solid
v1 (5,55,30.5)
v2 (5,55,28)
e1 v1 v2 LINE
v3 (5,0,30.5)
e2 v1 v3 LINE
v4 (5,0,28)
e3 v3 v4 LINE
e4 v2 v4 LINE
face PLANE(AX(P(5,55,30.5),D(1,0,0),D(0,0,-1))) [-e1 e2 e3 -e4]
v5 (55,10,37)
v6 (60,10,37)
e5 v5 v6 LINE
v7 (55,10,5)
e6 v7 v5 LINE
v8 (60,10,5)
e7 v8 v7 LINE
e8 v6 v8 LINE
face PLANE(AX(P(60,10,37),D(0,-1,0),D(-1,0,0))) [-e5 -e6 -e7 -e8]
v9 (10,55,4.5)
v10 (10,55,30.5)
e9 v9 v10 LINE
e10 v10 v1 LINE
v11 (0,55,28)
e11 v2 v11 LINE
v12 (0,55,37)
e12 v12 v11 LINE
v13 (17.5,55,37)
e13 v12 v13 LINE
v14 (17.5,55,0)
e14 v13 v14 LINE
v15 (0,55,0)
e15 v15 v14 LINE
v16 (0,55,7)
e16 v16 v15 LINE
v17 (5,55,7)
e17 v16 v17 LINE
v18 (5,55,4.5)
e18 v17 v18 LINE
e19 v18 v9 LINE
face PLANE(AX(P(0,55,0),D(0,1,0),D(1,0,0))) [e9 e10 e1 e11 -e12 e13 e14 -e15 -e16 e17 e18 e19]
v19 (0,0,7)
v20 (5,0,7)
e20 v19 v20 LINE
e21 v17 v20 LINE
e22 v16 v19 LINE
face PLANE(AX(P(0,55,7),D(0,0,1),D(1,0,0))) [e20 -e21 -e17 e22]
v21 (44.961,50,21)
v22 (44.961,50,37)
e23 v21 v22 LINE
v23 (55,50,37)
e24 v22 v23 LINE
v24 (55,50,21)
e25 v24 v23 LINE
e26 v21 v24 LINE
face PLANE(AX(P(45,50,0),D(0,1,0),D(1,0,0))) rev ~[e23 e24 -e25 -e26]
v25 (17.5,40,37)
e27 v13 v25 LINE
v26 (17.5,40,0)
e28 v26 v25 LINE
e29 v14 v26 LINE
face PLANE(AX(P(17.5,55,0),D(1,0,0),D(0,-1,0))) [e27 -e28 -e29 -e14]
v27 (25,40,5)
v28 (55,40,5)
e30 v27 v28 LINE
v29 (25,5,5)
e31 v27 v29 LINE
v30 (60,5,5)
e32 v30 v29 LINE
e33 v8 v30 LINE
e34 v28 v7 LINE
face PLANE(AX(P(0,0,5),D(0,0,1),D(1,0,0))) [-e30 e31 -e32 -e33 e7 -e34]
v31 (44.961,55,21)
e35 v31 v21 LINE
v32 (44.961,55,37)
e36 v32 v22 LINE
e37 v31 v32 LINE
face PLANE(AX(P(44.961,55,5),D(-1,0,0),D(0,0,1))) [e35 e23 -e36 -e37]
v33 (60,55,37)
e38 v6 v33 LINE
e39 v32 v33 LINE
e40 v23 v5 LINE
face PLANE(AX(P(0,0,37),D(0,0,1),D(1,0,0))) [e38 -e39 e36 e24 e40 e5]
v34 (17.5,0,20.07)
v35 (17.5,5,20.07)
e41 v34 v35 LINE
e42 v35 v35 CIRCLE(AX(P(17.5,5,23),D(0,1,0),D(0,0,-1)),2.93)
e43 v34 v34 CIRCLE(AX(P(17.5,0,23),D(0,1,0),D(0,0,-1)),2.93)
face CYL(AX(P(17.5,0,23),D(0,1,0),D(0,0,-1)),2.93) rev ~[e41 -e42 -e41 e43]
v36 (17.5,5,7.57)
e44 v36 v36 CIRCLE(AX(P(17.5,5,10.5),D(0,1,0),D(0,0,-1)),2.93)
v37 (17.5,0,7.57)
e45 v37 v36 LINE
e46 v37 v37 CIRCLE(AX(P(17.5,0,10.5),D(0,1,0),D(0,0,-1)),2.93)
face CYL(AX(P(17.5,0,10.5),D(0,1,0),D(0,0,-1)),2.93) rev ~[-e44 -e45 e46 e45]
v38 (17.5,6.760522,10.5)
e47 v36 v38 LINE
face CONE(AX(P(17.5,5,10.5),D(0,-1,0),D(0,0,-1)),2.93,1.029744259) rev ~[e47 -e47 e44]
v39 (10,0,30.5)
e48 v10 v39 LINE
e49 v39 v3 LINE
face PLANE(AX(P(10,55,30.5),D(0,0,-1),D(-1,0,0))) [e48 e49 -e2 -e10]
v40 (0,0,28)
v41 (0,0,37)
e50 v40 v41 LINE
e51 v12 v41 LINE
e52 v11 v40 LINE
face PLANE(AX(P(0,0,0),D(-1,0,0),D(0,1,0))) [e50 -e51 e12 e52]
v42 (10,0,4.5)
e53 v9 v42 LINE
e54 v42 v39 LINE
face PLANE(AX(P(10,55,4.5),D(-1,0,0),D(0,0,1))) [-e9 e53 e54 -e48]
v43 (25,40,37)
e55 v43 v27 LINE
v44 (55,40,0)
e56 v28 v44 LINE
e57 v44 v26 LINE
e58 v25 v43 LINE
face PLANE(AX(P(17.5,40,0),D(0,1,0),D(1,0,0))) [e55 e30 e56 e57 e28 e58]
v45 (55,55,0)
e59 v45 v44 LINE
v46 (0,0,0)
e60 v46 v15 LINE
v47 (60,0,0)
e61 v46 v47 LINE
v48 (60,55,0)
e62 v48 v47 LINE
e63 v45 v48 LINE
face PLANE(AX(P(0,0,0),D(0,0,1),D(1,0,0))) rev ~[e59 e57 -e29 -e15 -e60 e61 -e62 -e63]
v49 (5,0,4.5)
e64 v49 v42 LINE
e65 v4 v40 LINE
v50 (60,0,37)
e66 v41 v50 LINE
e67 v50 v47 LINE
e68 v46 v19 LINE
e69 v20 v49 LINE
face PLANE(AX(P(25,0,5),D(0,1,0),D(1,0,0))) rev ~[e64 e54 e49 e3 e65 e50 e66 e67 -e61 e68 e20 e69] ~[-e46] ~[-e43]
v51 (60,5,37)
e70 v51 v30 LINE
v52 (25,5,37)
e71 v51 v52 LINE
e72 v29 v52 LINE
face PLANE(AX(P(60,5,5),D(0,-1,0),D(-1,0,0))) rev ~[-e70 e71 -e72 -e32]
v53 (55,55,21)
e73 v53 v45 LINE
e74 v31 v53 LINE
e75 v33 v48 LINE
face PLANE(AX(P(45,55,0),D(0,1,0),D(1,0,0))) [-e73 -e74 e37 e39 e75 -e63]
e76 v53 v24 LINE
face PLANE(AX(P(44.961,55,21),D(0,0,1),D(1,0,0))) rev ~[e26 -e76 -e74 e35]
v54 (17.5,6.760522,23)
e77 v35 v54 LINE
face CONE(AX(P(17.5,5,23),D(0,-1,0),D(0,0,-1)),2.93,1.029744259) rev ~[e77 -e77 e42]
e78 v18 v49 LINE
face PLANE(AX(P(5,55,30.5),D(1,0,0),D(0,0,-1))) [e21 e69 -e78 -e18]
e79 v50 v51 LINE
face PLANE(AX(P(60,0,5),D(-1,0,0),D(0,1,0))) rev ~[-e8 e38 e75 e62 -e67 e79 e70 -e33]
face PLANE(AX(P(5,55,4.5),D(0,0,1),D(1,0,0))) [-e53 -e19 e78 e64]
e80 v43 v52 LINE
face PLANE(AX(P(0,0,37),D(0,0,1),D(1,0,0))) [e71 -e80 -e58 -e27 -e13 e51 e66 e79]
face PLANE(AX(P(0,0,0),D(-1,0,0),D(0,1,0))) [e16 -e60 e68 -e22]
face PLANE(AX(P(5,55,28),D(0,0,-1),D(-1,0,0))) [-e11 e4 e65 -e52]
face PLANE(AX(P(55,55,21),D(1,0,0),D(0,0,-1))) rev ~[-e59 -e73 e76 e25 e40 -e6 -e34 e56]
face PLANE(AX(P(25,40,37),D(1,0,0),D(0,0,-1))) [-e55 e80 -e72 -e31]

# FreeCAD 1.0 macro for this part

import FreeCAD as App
import Part
import Sketcher

V = App.Vector
Q = App.Units.Quantity


def add_polygon(sketch, points):
    """Adds a closed chain of lines whose ends are joined by coincident constraints."""
    first, n = sketch.GeometryCount, len(points)
    for a, b in zip(points, points[1:] + points[:1]):
        sketch.addGeometry(Part.LineSegment(App.Vector(*a, 0), App.Vector(*b, 0)), False)
    for i in range(n):
        sketch.addConstraint(Sketcher.Constraint("Coincident", first + i, 2, first + (i + 1) % n, 1))

doc = App.newDocument("Part")
params = doc.addObject("Spreadsheet::Sheet", "Params")
for row, (alias, value) in enumerate([
    ("sketch1_width", "60 mm"),
    ("sketch1_width2", "15 mm"),
    ("sketch1_height", "55 mm"),
    ("sketch1_width3", "27.5 mm"),
    ("pad1_length", "5 mm"),
    ("sketch2_height", "32 mm"),
    ("sketch2_width", "17.5 mm"),
    ("pad2_length", "55 mm"),
    ("sketch3_height", "32 mm"),
    ("pad3_length", "5 mm"),
    ("sketch4_width", "7.5 mm"),
    ("sketch4_height", "32 mm"),
    ("pad4_length", "40 mm"),
    ("sketch5_height", "5 mm"),
    ("sketch5_width", "35 mm"),
    ("pad5_length", "32 mm"),
    ("sketch6_width", "5 mm"),
    ("sketch6_height", "50 mm"),
    ("pad6_length", "32 mm"),
    ("sketch7_width", "5 mm"),
    ("sketch7_height", "26 mm"),
    ("pocket1_length", "60 mm"),
    ("sketch8_height", "21 mm"),
    ("sketch8_width", "5 mm"),
    ("pocket2_length", "60 mm"),
    ("sketch9_diameter", "5.86 mm"),
    ("hole_diameter", "5.86 mm"),
    ("hole_depth", "5 mm"),
    ("sketch10_width", "5 mm"),
    ("pocket3_length", "64 mm"),
    ("sketch11_height", "21 mm"),
    ("pocket4_length", "15 mm"),
], start=1):
    params.set(f"A{row}", alias)
    params.set(f"B{row}", "=" + value)
    params.setAlias(f"B{row}", alias)

body = doc.addObject("PartDesign::Body", "Body")

# Sketch on XY plane
sketch1 = body.newObject("Sketcher::SketchObject", "Sketch")
sketch1.AttachmentSupport = (doc.getObject("XY_Plane"), [""])
sketch1.MapMode = "FlatFace"
add_polygon(sketch1, [(0, 55), (0, 0), (60, 0), (60, 55), (45, 55), (45, 40), (17.5, 40), (17.5, 55)])  # lines 0-7
sketch1.addConstraint([
    Sketcher.Constraint("Vertical", 0),
    Sketcher.Constraint("Horizontal", 1),
    Sketcher.Constraint("Vertical", 2),
    Sketcher.Constraint("Horizontal", 3),
    Sketcher.Constraint("Vertical", 4),
    Sketcher.Constraint("Horizontal", 5),
    Sketcher.Constraint("Vertical", 6),
    Sketcher.Constraint("Horizontal", 7),
    Sketcher.Constraint("Coincident", 0, 2, -1, 1),
    Sketcher.Constraint("Horizontal", 3, 2, 6, 2),
    Sketcher.Constraint("Equal", 3, 4),
    Sketcher.Constraint("DistanceX", 1, 1, 1, 2, Q("60 mm")),
    Sketcher.Constraint("DistanceX", 3, 2, 3, 1, Q("15 mm")),
    Sketcher.Constraint("DistanceY", 0, 2, 0, 1, Q("55 mm")),
    Sketcher.Constraint("DistanceX", 5, 2, 5, 1, Q("27.5 mm")),
])
sketch1.setExpression("Constraints[19]", "Params.sketch1_width")
sketch1.setExpression("Constraints[20]", "Params.sketch1_width2")
sketch1.setExpression("Constraints[21]", "Params.sketch1_height")
sketch1.setExpression("Constraints[22]", "Params.sketch1_width3")
pad1 = body.newObject("PartDesign::Pad", "Pad")
pad1.Profile = sketch1
pad1.setExpression("Length", "Params.pad1_length")

# Sketch on XZ plane
sketch2 = body.newObject("Sketcher::SketchObject", "Sketch001")
sketch2.AttachmentSupport = (doc.getObject("XZ_Plane"), [""])
sketch2.MapMode = "FlatFace"
sketch2.AttachmentOffset = App.Placement(V(0, 0, -55), App.Rotation())
add_polygon(sketch2, [(17.5, 37), (17.5, 5), (0, 5), (0, 37)])  # lines 0-3
sketch2.addConstraint([
    Sketcher.Constraint("Vertical", 0),
    Sketcher.Constraint("Horizontal", 1),
    Sketcher.Constraint("Vertical", 2),
    Sketcher.Constraint("Horizontal", 3),
    Sketcher.Constraint("PointOnObject", 1, 2, -2),
    Sketcher.Constraint("DistanceY", 0, 2, 0, 1, Q("32 mm")),
    Sketcher.Constraint("DistanceX", 1, 2, 1, 1, Q("17.5 mm")),
    Sketcher.Constraint("DistanceY", -1, 1, 0, 2, Q("5 mm")),
])
sketch2.setExpression("Constraints[9]", "Params.sketch2_height")
sketch2.setExpression("Constraints[10]", "Params.sketch2_width")
pad2 = body.newObject("PartDesign::Pad", "Pad001")
pad2.Profile = sketch2
pad2.setExpression("Length", "Params.pad2_length")

# Sketch on XZ plane
sketch3 = body.newObject("Sketcher::SketchObject", "Sketch002")
sketch3.AttachmentSupport = (doc.getObject("XZ_Plane"), [""])
sketch3.MapMode = "FlatFace"
sketch3.AttachmentOffset = App.Placement(V(0, 0, -55), App.Rotation())
add_polygon(sketch3, [(44.961, 5), (44.961, 37), (60, 37), (60, 5)])  # lines 0-3
sketch3.addConstraint([
    Sketcher.Constraint("Vertical", 0),
    Sketcher.Constraint("Horizontal", 1),
    Sketcher.Constraint("Vertical", 2),
    Sketcher.Constraint("Horizontal", 3),
    Sketcher.Constraint("DistanceY", 0, 1, 0, 2, Q("32 mm")),
    Sketcher.Constraint("DistanceY", -1, 1, 0, 2, Q("37 mm")),
    Sketcher.Constraint("DistanceX", -1, 1, 1, 2, Q("60 mm")),
    Sketcher.Constraint("DistanceX", 1, 1, 1, 2, Q("15.039 mm")),
])
sketch3.setExpression("Constraints[8]", "Params.sketch3_height")
pad3 = body.newObject("PartDesign::Pad", "Pad002")
pad3.Profile = sketch3
pad3.setExpression("Length", "Params.pad3_length")

# Sketch on XZ plane
sketch4 = body.newObject("Sketcher::SketchObject", "Sketch003")
sketch4.AttachmentSupport = (doc.getObject("XZ_Plane"), [""])
sketch4.MapMode = "FlatFace"
sketch4.AttachmentOffset = App.Placement(V(0, 0, -40), App.Rotation())
add_polygon(sketch4, [(25, 5), (17.5, 5), (17.5, 37), (25, 37)])  # lines 0-3
sketch4.addConstraint([
    Sketcher.Constraint("Horizontal", 0),
    Sketcher.Constraint("Vertical", 1),
    Sketcher.Constraint("Horizontal", 2),
    Sketcher.Constraint("Vertical", 3),
    Sketcher.Constraint("DistanceX", 0, 2, 0, 1, Q("7.5 mm")),
    Sketcher.Constraint("DistanceY", 1, 1, 1, 2, Q("32 mm")),
    Sketcher.Constraint("DistanceY", -1, 1, 0, 2, Q("5 mm")),
    Sketcher.Constraint("DistanceX", -1, 1, 2, 2, Q("25 mm")),
])
sketch4.setExpression("Constraints[8]", "Params.sketch4_width")
sketch4.setExpression("Constraints[9]", "Params.sketch4_height")
pad4 = body.newObject("PartDesign::Pad", "Pad003")
pad4.Profile = sketch4
pad4.setExpression("Length", "Params.pad4_length")

# Sketch on XY plane
sketch5 = body.newObject("Sketcher::SketchObject", "Sketch004")
sketch5.AttachmentSupport = (doc.getObject("XY_Plane"), [""])
sketch5.MapMode = "FlatFace"
sketch5.AttachmentOffset = App.Placement(V(0, 0, 5), App.Rotation())
add_polygon(sketch5, [(25, 5), (25, 0), (60, 0), (60, 5)])  # lines 0-3
sketch5.addConstraint([
    Sketcher.Constraint("Vertical", 0),
    Sketcher.Constraint("Horizontal", 1),
    Sketcher.Constraint("Vertical", 2),
    Sketcher.Constraint("Horizontal", 3),
    Sketcher.Constraint("PointOnObject", 0, 2, -1),
    Sketcher.Constraint("DistanceY", 0, 2, 0, 1, Q("5 mm")),
    Sketcher.Constraint("DistanceX", 1, 1, 1, 2, Q("35 mm")),
    Sketcher.Constraint("DistanceX", -1, 1, 0, 2, Q("25 mm")),
])
sketch5.setExpression("Constraints[9]", "Params.sketch5_height")
sketch5.setExpression("Constraints[10]", "Params.sketch5_width")
pad5 = body.newObject("PartDesign::Pad", "Pad004")
pad5.Profile = sketch5
pad5.setExpression("Length", "Params.pad5_length")

# Sketch on XY plane
sketch6 = body.newObject("Sketcher::SketchObject", "Sketch005")
sketch6.AttachmentSupport = (doc.getObject("XY_Plane"), [""])
sketch6.MapMode = "FlatFace"
sketch6.AttachmentOffset = App.Placement(V(0, 0, 5), App.Rotation())
add_polygon(sketch6, [(60, 0), (60, 50), (55, 50), (55, 0)])  # lines 0-3
sketch6.addConstraint([
    Sketcher.Constraint("Vertical", 0),
    Sketcher.Constraint("Horizontal", 1),
    Sketcher.Constraint("Vertical", 2),
    Sketcher.Constraint("Horizontal", 3),
    Sketcher.Constraint("PointOnObject", 2, 2, -1),
    Sketcher.Constraint("DistanceX", 1, 2, 1, 1, Q("5 mm")),
    Sketcher.Constraint("DistanceY", 0, 1, 0, 2, Q("50 mm")),
    Sketcher.Constraint("DistanceX", -1, 1, 0, 2, Q("60 mm")),
])
sketch6.setExpression("Constraints[9]", "Params.sketch6_width")
sketch6.setExpression("Constraints[10]", "Params.sketch6_height")
pad6 = body.newObject("PartDesign::Pad", "Pad005")
pad6.Profile = sketch6
pad6.setExpression("Length", "Params.pad6_length")

# Sketch on XZ plane
sketch7 = body.newObject("Sketcher::SketchObject", "Sketch006")
sketch7.AttachmentSupport = (doc.getObject("XZ_Plane"), [""])
sketch7.MapMode = "FlatFace"
sketch7.AttachmentOffset = App.Placement(V(0, 0, -55), App.Rotation())
add_polygon(sketch7, [(5, 30.5), (10, 30.5), (10, 4.5), (5, 4.5)])  # lines 0-3
sketch7.addConstraint([
    Sketcher.Constraint("Horizontal", 0),
    Sketcher.Constraint("Vertical", 1),
    Sketcher.Constraint("Horizontal", 2),
    Sketcher.Constraint("Vertical", 3),
    Sketcher.Constraint("DistanceX", 0, 1, 0, 2, Q("5 mm")),
    Sketcher.Constraint("DistanceY", 1, 2, 1, 1, Q("26 mm")),
    Sketcher.Constraint("DistanceX", -1, 1, 2, 2, Q("5 mm")),
    Sketcher.Constraint("DistanceY", -1, 1, 1, 2, Q("4.5 mm")),
])
sketch7.setExpression("Constraints[8]", "Params.sketch7_width")
sketch7.setExpression("Constraints[9]", "Params.sketch7_height")
pocket1 = body.newObject("PartDesign::Pocket", "Pocket")
pocket1.Profile = sketch7
pocket1.setExpression("Length", "Params.pocket1_length")
pocket1.Reversed = True

# Sketch on XZ plane
sketch8 = body.newObject("Sketcher::SketchObject", "Sketch007")
sketch8.AttachmentSupport = (doc.getObject("XZ_Plane"), [""])
sketch8.MapMode = "FlatFace"
sketch8.AttachmentOffset = App.Placement(V(0, 0, -55), App.Rotation())
add_polygon(sketch8, [(5, 28), (5, 7), (0, 7), (0, 28)])  # lines 0-3
sketch8.addConstraint([
    Sketcher.Constraint("Vertical", 0),
    Sketcher.Constraint("Horizontal", 1),
    Sketcher.Constraint("Vertical", 2),
    Sketcher.Constraint("Horizontal", 3),
    Sketcher.Constraint("PointOnObject", 1, 2, -2),
    Sketcher.Constraint("DistanceY", 0, 2, 0, 1, Q("21 mm")),
    Sketcher.Constraint("DistanceX", 1, 2, 1, 1, Q("5 mm")),
    Sketcher.Constraint("DistanceY", -1, 1, 0, 2, Q("7 mm")),
])
sketch8.setExpression("Constraints[9]", "Params.sketch8_height")
sketch8.setExpression("Constraints[10]", "Params.sketch8_width")
pocket2 = body.newObject("PartDesign::Pocket", "Pocket001")
pocket2.Profile = sketch8
pocket2.setExpression("Length", "Params.pocket2_length")
pocket2.Reversed = True

# Sketch on XZ plane
sketch9 = body.newObject("Sketcher::SketchObject", "Sketch008")
sketch9.AttachmentSupport = (doc.getObject("XZ_Plane"), [""])
sketch9.MapMode = "FlatFace"
sketch9.addGeometry([
    Part.Circle(V(17.5, 10.5, 0), V(0, 0, 1), 2.93),
    Part.Circle(V(17.5, 23, 0), V(0, 0, 1), 2.93),
], False)
sketch9.addConstraint([
    Sketcher.Constraint("Equal", 0, 1),
    Sketcher.Constraint("Vertical", 0, 3, 1, 3),
    Sketcher.Constraint("Diameter", 0, Q("5.86 mm")),
    Sketcher.Constraint("DistanceY", -1, 1, 1, 3, Q("23 mm")),
    Sketcher.Constraint("DistanceX", -1, 1, 0, 3, Q("17.5 mm")),
    Sketcher.Constraint("DistanceY", -1, 1, 0, 3, Q("10.5 mm")),
])
sketch9.setExpression("Constraints[2]", "Params.sketch9_diameter")
doc.recompute()
hole = body.newObject("PartDesign::Hole", "Hole")
hole.Profile = sketch9
hole.ThreadType = "None"
hole.setExpression("Diameter", "Params.hole_diameter")
hole.DepthType = "Dimension"
hole.setExpression("Depth", "Params.hole_depth")
hole.DrillPoint = "Angled"
hole.DrillPointAngle = 118

# Sketch on XY plane
sketch10 = body.newObject("Sketcher::SketchObject", "Sketch009")
sketch10.AttachmentSupport = (doc.getObject("XY_Plane"), [""])
sketch10.MapMode = "FlatFace"
sketch10.AttachmentOffset = App.Placement(V(0, 0, 37), App.Rotation())
add_polygon(sketch10, [(60, 10), (55, 10), (55, 5), (60, 5)])  # lines 0-3
sketch10.addConstraint([
    Sketcher.Constraint("Horizontal", 0),
    Sketcher.Constraint("Vertical", 1),
    Sketcher.Constraint("Horizontal", 2),
    Sketcher.Constraint("Vertical", 3),
    Sketcher.Constraint("Equal", 2, 1),
    Sketcher.Constraint("DistanceX", 0, 2, 0, 1, Q("5 mm")),
    Sketcher.Constraint("DistanceY", -1, 1, 1, 2, Q("5 mm")),
    Sketcher.Constraint("DistanceX", -1, 1, 0, 2, Q("55 mm")),
])
sketch10.setExpression("Constraints[9]", "Params.sketch10_width")
pocket3 = body.newObject("PartDesign::Pocket", "Pocket002")
pocket3.Profile = sketch10
pocket3.setExpression("Length", "Params.pocket3_length")
pocket3.Midplane = True

# Sketch on XZ plane
sketch11 = body.newObject("Sketcher::SketchObject", "Sketch010")
sketch11.AttachmentSupport = (doc.getObject("XZ_Plane"), [""])
sketch11.MapMode = "FlatFace"
sketch11.AttachmentOffset = App.Placement(V(0, 0, -55), App.Rotation())
add_polygon(sketch11, [(44.961, 0), (44.961, 21), (55, 21), (55, 0)])  # lines 0-3
sketch11.addConstraint([
    Sketcher.Constraint("Vertical", 0),
    Sketcher.Constraint("Horizontal", 1),
    Sketcher.Constraint("Vertical", 2),
    Sketcher.Constraint("Horizontal", 3),
    Sketcher.Constraint("PointOnObject", 2, 2, -1),
    Sketcher.Constraint("DistanceY", 0, 1, 0, 2, Q("21 mm")),
    Sketcher.Constraint("DistanceX", -1, 1, 1, 2, Q("55 mm")),
    Sketcher.Constraint("DistanceX", 1, 1, 1, 2, Q("10.039 mm")),
])
sketch11.setExpression("Constraints[9]", "Params.sketch11_height")
pocket4 = body.newObject("PartDesign::Pocket", "Pocket003")
pocket4.Profile = sketch11
pocket4.setExpression("Length", "Params.pocket4_length")
pocket4.Reversed = True

doc.recompute()
